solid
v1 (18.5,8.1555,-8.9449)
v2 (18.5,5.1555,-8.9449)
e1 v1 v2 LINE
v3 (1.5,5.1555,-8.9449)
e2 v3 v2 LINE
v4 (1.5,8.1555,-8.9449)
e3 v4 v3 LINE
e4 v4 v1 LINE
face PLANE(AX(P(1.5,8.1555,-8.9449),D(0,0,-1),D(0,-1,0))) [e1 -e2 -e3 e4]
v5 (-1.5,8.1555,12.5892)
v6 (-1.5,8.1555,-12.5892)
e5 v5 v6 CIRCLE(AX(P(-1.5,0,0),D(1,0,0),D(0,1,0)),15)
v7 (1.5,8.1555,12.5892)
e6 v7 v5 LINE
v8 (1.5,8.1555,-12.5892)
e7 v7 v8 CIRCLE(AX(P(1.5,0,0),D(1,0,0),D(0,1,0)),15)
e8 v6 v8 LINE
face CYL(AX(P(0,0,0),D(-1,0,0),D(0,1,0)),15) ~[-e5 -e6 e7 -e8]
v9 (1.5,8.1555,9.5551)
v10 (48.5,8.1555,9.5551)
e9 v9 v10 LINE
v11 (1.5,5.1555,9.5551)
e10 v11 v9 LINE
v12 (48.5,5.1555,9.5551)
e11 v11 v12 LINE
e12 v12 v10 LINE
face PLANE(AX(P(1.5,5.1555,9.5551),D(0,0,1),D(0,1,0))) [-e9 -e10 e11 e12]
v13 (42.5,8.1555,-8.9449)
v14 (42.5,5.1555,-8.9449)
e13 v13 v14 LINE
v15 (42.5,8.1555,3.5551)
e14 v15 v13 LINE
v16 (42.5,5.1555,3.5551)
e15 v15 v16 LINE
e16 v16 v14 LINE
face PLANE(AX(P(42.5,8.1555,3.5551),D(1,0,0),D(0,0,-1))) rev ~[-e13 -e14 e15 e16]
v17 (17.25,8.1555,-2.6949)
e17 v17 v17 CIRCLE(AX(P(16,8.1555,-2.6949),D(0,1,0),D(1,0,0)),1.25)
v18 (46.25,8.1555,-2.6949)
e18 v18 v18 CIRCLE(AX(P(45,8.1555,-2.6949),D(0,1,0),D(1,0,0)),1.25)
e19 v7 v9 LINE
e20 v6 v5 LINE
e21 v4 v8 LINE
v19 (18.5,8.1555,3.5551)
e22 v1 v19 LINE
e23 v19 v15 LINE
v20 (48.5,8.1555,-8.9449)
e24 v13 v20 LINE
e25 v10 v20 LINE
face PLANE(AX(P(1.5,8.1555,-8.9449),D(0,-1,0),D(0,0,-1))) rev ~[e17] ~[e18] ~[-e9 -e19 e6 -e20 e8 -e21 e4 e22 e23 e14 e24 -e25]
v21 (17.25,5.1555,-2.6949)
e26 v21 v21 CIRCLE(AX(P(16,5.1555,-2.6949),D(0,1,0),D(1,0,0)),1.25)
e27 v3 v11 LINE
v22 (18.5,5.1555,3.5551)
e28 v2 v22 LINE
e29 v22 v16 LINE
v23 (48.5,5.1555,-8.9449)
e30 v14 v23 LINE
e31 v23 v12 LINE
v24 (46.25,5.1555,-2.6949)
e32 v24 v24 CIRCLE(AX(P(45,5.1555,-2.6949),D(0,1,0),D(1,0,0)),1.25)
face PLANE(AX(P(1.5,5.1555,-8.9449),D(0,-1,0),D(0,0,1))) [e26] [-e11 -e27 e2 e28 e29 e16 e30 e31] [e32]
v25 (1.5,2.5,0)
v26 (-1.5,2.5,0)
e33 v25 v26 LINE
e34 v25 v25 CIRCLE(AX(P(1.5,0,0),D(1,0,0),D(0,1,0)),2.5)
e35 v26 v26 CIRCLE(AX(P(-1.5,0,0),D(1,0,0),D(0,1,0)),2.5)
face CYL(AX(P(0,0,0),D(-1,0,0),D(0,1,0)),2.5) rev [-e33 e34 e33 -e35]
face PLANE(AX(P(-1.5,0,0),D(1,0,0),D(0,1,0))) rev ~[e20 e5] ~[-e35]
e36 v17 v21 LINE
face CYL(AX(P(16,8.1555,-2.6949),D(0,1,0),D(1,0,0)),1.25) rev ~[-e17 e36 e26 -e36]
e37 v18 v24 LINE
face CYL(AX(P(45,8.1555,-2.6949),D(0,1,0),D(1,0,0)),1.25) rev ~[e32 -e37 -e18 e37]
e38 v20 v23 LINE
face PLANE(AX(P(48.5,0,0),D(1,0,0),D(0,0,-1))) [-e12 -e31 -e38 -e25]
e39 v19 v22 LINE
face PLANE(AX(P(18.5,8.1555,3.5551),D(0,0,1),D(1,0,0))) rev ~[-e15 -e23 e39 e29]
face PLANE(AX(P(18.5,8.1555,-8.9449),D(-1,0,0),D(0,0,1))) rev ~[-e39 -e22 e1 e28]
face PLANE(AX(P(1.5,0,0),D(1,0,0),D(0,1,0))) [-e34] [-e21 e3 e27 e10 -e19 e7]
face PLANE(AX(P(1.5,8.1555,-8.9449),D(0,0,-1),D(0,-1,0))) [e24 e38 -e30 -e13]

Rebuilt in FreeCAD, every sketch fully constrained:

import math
import FreeCAD as App
import Part
import Sketcher

V = App.Vector
Q = App.Units.Quantity

doc = App.newDocument("Part")
params = doc.addObject("Spreadsheet::Sheet", "Params")
for row, (alias, value) in enumerate([
    ("sketch1_diameter", "30 mm"),
    ("sketch1_diameter2", "5 mm"),
    ("pad1_length", "3 mm"),
    ("sketch2_width", "3 mm"),
    ("sketch2_height", "18.5 mm"),
    ("pad2_length", "47 mm"),
    ("sketch3_diameter", "2.5 mm"),
    ("sketch3_width", "24 mm"),
    ("sketch3_height", "12.5 mm"),
    ("pocket1_length", "3 mm"),
    ("sketch4_radius", "15 mm"),
    ("pocket2_length", "3 mm"),
], start=1):
    params.set(f"A{row}", alias)
    params.set(f"B{row}", "=" + value)
    params.setAlias(f"B{row}", alias)

body = doc.addObject("PartDesign::Body", "Body")

# Sketch on YZ plane
sketch1 = body.newObject("Sketcher::SketchObject", "Sketch")
sketch1.AttachmentSupport = (doc.getObject("YZ_Plane"), [""])
sketch1.MapMode = "FlatFace"
sketch1.addGeometry([
    Part.Circle(V(0, 0, 0), V(0, 0, 1), 15),
    Part.Circle(V(0, 0, 0), V(0, 0, 1), 2.5),
], False)
sketch1.addConstraint([
    Sketcher.Constraint("Coincident", 0, 3, -1, 1),
    Sketcher.Constraint("Coincident", 1, 3, -1, 1),
    Sketcher.Constraint("Diameter", 0, Q("30 mm")),
    Sketcher.Constraint("Diameter", 1, Q("5 mm")),
])
sketch1.setExpression("Constraints[2]", "Params.sketch1_diameter")
sketch1.setExpression("Constraints[3]", "Params.sketch1_diameter2")
pad1 = body.newObject("PartDesign::Pad", "Pad")
pad1.Profile = sketch1
pad1.setExpression("Length", "Params.pad1_length")
pad1.Midplane = True

# Sketch on YZ plane
sketch2 = body.newObject("Sketcher::SketchObject", "Sketch001")
sketch2.AttachmentSupport = (doc.getObject("YZ_Plane"), [""])
sketch2.MapMode = "FlatFace"
sketch2.AttachmentOffset = App.Placement(V(0, 0, 1.5), App.Rotation())
sketch2.addGeometry([
    Part.LineSegment(V(8.1555, -8.9449, 0), V(8.1555, 9.5551, 0)),
    Part.LineSegment(V(8.1555, 9.5551, 0), V(5.1555, 9.5551, 0)),
    Part.LineSegment(V(5.1555, 9.5551, 0), V(5.1555, -8.9449, 0)),
    Part.LineSegment(V(5.1555, -8.9449, 0), V(8.1555, -8.9449, 0)),
], False)
sketch2.addConstraint([
    Sketcher.Constraint("Coincident", 0, 2, 1, 1),
    Sketcher.Constraint("Coincident", 1, 2, 2, 1),
    Sketcher.Constraint("Coincident", 2, 2, 3, 1),
    Sketcher.Constraint("Coincident", 3, 2, 0, 1),
    Sketcher.Constraint("Vertical", 0),
    Sketcher.Constraint("Horizontal", 1),
    Sketcher.Constraint("Vertical", 2),
    Sketcher.Constraint("Horizontal", 3),
    Sketcher.Constraint("DistanceX", 1, 2, 1, 1, Q("3 mm")),
    Sketcher.Constraint("DistanceY", 0, 1, 0, 2, Q("18.5 mm")),
    Sketcher.Constraint("DistanceY", -1, 1, 0, 2, Q("9.555 mm")),
    Sketcher.Constraint("DistanceX", -1, 1, 0, 2, Q("8.1555 mm")),
])
sketch2.setExpression("Constraints[8]", "Params.sketch2_width")
sketch2.setExpression("Constraints[9]", "Params.sketch2_height")
pad2 = body.newObject("PartDesign::Pad", "Pad001")
pad2.Profile = sketch2
pad2.setExpression("Length", "Params.pad2_length")

# Sketch on XZ plane
sketch3 = body.newObject("Sketcher::SketchObject", "Sketch002")
sketch3.AttachmentSupport = (doc.getObject("XZ_Plane"), [""])
sketch3.MapMode = "FlatFace"
sketch3.AttachmentOffset = App.Placement(V(0, 0, -8.1555), App.Rotation())
sketch3.addGeometry([
    Part.LineSegment(V(42.5, 3.5551, 0), V(42.5, -8.9449, 0)),  # 0
    Part.LineSegment(V(42.5, -8.9449, 0), V(18.5, -8.9449, 0)),  # 1
    Part.LineSegment(V(18.5, -8.9449, 0), V(18.5, 3.5551, 0)),  # 2
    Part.LineSegment(V(18.5, 3.5551, 0), V(42.5, 3.5551, 0)),  # 3
    Part.Circle(V(45, -2.6949, 0), V(0, 0, 1), 1.25),  # 4
    Part.Circle(V(16, -2.6949, 0), V(0, 0, 1), 1.25),  # 5
], False)
sketch3.addConstraint([
    Sketcher.Constraint("Coincident", 0, 2, 1, 1),
    Sketcher.Constraint("Coincident", 1, 2, 2, 1),
    Sketcher.Constraint("Coincident", 2, 2, 3, 1),
    Sketcher.Constraint("Coincident", 3, 2, 0, 1),
    Sketcher.Constraint("Vertical", 0),
    Sketcher.Constraint("Horizontal", 1),
    Sketcher.Constraint("Vertical", 2),
    Sketcher.Constraint("Horizontal", 3),
    Sketcher.Constraint("Equal", 4, 5),
    Sketcher.Constraint("Horizontal", 4, 3, 5, 3),
    Sketcher.Constraint("Diameter", 4, Q("2.5 mm")),
    Sketcher.Constraint("DistanceX", 1, 2, 1, 1, Q("24 mm")),
    Sketcher.Constraint("DistanceY", 0, 2, 0, 1, Q("12.5 mm")),
    Sketcher.Constraint("DistanceX", 5, 3, 4, 3, Q("29 mm")),
    Sketcher.Constraint("DistanceX", 0, 2, 4, 3, Q("2.5 mm")),
    Sketcher.Constraint("DistanceX", -1, 1, 4, 3, Q("45 mm")),
    Sketcher.Constraint("DistanceY", 0, 2, 4, 3, Q("6.25 mm")),
    Sketcher.Constraint("DistanceY", 4, 3, -1, 1, Q("2.695 mm")),
])
sketch3.setExpression("Constraints[10]", "Params.sketch3_diameter")
sketch3.setExpression("Constraints[11]", "Params.sketch3_width")
sketch3.setExpression("Constraints[12]", "Params.sketch3_height")
pocket1 = body.newObject("PartDesign::Pocket", "Pocket")
pocket1.Profile = sketch3
pocket1.setExpression("Length", "Params.pocket1_length")
pocket1.Reversed = True

# Sketch on YZ plane
sketch4 = body.newObject("Sketcher::SketchObject", "Sketch003")
sketch4.AttachmentSupport = (doc.getObject("YZ_Plane"), [""])
sketch4.MapMode = "FlatFace"
sketch4.AttachmentOffset = App.Placement(V(0, 0, 1.5), App.Rotation())
sketch4.addGeometry([
    Part.LineSegment(V(8.1555, 12.5892, 0), V(8.1555, -12.5892, 0)),
    Part.ArcOfCircle(Part.Circle(V(0, 0, 0), V(0, 0, 1), 15), math.radians(-57.06414), math.radians(57.06414)),
], False)
sketch4.addConstraint([
    Sketcher.Constraint("Coincident", 0, 1, 1, 2),
    Sketcher.Constraint("Coincident", 1, 1, 0, 2),
    Sketcher.Constraint("Vertical", 0),
    Sketcher.Constraint("Coincident", 1, 3, -1, 1),
    Sketcher.Constraint("Radius", 1, Q("15 mm")),
    Sketcher.Constraint("DistanceY", 0, 2, 0, 1, Q("25.1784 mm")),
])
sketch4.setExpression("Constraints[4]", "Params.sketch4_radius")
pocket2 = body.newObject("PartDesign::Pocket", "Pocket001")
pocket2.Profile = sketch4
pocket2.setExpression("Length", "Params.pocket2_length")

doc.recompute()
